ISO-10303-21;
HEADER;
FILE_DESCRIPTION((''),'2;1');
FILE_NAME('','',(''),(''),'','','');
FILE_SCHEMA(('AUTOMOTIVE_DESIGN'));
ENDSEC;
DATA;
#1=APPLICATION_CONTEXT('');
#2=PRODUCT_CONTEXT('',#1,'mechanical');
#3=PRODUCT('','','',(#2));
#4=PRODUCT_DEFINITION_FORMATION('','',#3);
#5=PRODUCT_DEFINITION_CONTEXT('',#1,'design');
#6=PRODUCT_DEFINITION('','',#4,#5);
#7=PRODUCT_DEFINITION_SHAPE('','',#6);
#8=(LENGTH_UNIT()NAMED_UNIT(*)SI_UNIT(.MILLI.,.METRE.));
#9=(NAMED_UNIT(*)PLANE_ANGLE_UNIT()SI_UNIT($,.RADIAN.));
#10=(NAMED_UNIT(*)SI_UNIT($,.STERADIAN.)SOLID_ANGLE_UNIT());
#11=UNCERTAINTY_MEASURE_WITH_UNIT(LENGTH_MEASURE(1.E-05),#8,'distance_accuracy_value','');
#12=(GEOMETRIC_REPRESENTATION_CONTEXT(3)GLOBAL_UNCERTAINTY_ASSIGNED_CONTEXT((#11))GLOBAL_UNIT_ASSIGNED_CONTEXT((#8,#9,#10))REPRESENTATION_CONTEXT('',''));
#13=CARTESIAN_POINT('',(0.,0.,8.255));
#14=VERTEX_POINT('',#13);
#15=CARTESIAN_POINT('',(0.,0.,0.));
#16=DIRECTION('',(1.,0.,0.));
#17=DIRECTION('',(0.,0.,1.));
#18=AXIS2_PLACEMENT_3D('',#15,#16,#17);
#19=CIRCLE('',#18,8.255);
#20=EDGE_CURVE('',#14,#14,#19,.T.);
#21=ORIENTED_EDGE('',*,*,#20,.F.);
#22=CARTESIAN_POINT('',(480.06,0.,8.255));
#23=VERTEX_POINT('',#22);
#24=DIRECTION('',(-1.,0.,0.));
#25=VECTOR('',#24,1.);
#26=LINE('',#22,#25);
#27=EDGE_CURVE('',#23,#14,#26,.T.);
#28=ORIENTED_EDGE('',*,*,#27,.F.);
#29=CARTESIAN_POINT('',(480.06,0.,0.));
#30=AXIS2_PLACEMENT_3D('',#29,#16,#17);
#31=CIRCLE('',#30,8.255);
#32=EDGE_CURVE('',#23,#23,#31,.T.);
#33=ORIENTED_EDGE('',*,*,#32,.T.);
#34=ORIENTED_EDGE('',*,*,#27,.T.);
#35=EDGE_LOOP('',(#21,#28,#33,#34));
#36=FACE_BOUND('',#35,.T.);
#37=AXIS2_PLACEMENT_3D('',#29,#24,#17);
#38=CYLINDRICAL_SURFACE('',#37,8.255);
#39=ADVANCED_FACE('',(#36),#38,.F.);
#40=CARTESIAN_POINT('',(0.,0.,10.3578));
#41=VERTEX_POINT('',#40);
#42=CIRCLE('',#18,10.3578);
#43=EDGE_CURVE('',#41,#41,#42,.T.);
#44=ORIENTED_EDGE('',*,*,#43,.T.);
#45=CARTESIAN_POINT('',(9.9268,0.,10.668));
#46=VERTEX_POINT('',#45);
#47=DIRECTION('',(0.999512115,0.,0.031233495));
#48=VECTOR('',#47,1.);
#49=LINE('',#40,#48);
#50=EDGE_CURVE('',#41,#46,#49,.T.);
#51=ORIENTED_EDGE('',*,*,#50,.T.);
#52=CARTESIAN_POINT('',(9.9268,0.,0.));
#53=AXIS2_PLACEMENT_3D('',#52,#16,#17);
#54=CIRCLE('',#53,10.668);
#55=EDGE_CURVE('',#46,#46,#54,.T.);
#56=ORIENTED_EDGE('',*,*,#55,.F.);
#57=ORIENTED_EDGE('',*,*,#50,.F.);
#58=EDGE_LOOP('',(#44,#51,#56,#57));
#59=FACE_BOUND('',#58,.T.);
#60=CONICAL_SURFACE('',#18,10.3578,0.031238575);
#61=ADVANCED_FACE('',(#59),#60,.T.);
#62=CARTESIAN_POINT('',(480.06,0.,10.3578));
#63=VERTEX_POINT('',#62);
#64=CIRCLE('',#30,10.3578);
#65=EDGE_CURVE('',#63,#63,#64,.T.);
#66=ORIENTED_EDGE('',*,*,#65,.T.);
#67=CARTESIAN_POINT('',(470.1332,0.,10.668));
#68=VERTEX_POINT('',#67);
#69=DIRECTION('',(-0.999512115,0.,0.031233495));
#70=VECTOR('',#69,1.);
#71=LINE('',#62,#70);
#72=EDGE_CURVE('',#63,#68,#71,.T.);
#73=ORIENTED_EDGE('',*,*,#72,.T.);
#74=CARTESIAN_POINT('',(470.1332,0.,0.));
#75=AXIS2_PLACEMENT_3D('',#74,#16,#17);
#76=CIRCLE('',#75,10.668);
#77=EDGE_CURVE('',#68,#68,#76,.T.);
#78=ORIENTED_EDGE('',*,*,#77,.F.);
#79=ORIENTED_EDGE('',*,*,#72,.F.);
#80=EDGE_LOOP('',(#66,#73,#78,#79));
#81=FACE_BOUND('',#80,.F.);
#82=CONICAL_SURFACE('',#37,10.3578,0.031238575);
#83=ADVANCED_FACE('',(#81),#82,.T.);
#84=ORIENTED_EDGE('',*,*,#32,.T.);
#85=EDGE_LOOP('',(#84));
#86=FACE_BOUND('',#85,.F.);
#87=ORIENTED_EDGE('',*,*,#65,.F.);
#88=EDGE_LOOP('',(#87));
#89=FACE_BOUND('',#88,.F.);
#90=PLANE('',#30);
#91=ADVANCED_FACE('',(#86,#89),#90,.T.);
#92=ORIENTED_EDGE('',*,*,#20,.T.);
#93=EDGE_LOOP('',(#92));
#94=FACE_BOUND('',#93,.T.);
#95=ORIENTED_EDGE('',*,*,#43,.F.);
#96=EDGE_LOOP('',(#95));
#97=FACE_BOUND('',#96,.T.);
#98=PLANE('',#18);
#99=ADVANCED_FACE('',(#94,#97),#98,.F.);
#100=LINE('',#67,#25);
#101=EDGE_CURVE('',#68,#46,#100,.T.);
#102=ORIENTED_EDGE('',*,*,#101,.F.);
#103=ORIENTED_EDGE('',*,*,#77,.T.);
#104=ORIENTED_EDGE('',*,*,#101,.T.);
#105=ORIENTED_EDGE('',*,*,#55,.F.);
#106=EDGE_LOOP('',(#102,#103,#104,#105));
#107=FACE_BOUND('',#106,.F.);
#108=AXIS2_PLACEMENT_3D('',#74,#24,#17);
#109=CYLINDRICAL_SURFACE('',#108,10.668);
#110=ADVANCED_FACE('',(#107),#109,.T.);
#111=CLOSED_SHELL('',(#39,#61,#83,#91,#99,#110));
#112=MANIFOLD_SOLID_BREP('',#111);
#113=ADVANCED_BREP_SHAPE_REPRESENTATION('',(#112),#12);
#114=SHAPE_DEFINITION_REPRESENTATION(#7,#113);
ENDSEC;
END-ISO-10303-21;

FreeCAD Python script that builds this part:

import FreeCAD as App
import Part
import Sketcher

V = App.Vector
Q = App.Units.Quantity

doc = App.newDocument("Part")
body = doc.addObject("PartDesign::Body", "Body")

sketch1 = body.newObject("Sketcher::SketchObject", "Sketch")
sketch1.AttachmentSupport = (doc.getObject("XZ_Plane"), [""])
sketch1.MapMode = "FlatFace"
sketch1.addGeometry(Part.LineSegment(V(480.06, 10.3578, 0), V(480.06, 8.255, 0)), False)
sketch1.addGeometry(Part.LineSegment(V(480.06, 8.255, 0), V(0, 8.255, 0)), False)
sketch1.addGeometry(Part.LineSegment(V(0, 8.255, 0), V(0, 10.3578, 0)), False)
sketch1.addGeometry(Part.LineSegment(V(0, 10.3578, 0), V(9.9268, 10.668, 0)), False)
sketch1.addGeometry(Part.LineSegment(V(9.9268, 10.668, 0), V(470.1332, 10.668, 0)), False)
sketch1.addGeometry(Part.LineSegment(V(470.1332, 10.668, 0), V(480.06, 10.3578, 0)), False)
sketch1.addConstraint(Sketcher.Constraint("Coincident", 0, 2, 1, 1))
sketch1.addConstraint(Sketcher.Constraint("Coincident", 1, 2, 2, 1))
sketch1.addConstraint(Sketcher.Constraint("Coincident", 2, 2, 3, 1))
sketch1.addConstraint(Sketcher.Constraint("Coincident", 3, 2, 4, 1))
sketch1.addConstraint(Sketcher.Constraint("Coincident", 4, 2, 5, 1))
sketch1.addConstraint(Sketcher.Constraint("Coincident", 5, 2, 0, 1))
sketch1.addConstraint(Sketcher.Constraint("Vertical", 0))
sketch1.addConstraint(Sketcher.Constraint("Horizontal", 1))
sketch1.addConstraint(Sketcher.Constraint("Vertical", 2))
sketch1.addConstraint(Sketcher.Constraint("Horizontal", 4))
sketch1.addConstraint(Sketcher.Constraint("PointOnObject", 1, 2, -2))
sketch1.addConstraint(Sketcher.Constraint("Horizontal", 2, 2, 5, 2))
sketch1.addConstraint(Sketcher.Constraint("Equal", 3, 5))
sketch1.addConstraint(Sketcher.Constraint("DistanceX", 1, 2, 1, 1, Q("18.9 in")))
sketch1.addConstraint(Sketcher.Constraint("Angle", 3, Q("1.7898 deg")))
sketch1.addConstraint(Sketcher.Constraint("DistanceY", -1, 1, 3, 2, Q("0.42 in")))
sketch1.addConstraint(Sketcher.Constraint("Distance", 3, Q("0.391 in")))
sketch1.addConstraint(Sketcher.Constraint("DistanceY", -1, 1, 0, 2, Q("0.325 in")))
revolution = body.newObject("PartDesign::Revolution", "Revolution")
revolution.Profile = sketch1
revolution.ReferenceAxis = (sketch1, ["H_Axis"])
revolution.Angle = 360

doc.recompute()
